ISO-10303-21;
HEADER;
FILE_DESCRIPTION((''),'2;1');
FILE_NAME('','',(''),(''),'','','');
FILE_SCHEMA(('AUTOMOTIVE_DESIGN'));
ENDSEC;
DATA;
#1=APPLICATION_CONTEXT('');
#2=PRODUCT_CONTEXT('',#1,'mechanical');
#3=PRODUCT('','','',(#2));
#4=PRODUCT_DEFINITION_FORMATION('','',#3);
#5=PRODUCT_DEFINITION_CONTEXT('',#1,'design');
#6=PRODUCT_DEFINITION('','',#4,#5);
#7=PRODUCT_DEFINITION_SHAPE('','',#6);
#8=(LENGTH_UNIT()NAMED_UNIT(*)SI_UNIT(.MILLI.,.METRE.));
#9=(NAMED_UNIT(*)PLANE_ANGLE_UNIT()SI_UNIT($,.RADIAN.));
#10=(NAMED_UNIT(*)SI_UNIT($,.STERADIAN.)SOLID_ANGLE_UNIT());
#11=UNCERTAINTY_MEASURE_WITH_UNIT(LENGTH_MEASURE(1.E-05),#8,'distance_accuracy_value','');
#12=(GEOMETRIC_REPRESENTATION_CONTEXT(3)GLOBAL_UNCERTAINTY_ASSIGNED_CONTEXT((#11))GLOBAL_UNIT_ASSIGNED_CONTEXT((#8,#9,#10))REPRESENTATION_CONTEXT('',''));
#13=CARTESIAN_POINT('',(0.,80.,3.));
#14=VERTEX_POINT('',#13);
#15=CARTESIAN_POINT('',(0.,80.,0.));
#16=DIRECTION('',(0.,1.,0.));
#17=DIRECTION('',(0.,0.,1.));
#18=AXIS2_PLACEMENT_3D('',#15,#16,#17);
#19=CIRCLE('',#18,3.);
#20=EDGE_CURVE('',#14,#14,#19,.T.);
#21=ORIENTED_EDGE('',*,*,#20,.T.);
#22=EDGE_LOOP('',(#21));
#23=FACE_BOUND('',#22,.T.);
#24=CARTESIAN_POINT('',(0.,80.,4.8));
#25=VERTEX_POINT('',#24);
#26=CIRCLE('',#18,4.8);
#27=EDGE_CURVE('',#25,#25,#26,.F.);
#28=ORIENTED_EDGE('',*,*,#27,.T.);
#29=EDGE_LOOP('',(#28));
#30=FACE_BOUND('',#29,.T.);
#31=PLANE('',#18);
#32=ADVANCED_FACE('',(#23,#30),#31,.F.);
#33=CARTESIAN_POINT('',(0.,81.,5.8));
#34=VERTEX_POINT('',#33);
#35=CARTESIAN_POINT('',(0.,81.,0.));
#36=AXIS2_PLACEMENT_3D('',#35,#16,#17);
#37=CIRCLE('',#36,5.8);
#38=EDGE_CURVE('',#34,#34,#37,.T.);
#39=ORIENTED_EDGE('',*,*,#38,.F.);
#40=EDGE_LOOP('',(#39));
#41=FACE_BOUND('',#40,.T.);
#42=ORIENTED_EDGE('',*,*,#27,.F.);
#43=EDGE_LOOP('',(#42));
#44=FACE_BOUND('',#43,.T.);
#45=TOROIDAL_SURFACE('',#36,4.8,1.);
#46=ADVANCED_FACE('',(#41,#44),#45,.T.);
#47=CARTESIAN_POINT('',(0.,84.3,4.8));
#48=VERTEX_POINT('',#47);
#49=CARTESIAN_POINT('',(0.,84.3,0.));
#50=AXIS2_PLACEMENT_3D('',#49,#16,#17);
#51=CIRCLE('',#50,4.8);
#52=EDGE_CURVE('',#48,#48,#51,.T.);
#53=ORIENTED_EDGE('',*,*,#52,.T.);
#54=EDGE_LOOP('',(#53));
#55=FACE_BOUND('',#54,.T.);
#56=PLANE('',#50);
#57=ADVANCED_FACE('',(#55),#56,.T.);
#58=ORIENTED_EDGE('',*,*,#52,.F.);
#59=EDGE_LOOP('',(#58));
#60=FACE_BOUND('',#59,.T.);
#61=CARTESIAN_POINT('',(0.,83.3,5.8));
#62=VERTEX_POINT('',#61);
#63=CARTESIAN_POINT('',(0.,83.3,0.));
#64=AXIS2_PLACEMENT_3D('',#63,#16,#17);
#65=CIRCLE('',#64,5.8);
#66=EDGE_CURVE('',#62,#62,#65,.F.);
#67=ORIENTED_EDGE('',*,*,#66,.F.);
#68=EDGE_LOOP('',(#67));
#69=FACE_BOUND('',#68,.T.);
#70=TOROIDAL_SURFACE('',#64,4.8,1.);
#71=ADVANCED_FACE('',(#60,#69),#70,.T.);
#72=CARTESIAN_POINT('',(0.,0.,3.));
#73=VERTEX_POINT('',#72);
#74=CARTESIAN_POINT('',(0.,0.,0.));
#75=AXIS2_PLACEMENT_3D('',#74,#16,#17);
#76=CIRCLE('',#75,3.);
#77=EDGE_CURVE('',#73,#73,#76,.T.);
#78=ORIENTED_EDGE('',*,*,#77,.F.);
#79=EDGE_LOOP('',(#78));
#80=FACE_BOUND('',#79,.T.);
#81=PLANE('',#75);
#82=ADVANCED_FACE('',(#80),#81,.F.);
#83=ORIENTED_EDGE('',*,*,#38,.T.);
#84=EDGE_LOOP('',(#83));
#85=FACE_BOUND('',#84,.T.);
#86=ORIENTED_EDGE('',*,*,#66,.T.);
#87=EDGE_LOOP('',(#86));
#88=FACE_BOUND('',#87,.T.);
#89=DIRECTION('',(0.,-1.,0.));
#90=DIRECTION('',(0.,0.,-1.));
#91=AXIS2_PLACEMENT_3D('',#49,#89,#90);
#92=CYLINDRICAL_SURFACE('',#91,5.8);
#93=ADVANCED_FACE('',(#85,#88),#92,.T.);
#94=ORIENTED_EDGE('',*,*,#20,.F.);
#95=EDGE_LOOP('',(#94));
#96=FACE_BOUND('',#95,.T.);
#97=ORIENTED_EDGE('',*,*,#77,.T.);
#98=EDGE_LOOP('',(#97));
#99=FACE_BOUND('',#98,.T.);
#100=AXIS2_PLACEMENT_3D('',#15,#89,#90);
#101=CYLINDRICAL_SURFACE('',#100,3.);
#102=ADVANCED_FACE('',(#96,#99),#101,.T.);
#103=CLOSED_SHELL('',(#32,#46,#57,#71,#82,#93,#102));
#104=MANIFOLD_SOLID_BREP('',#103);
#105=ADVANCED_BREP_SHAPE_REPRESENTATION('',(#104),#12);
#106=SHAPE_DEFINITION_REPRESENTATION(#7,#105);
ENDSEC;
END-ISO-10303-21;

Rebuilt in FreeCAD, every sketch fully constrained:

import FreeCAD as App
import Part
import Sketcher
from FreeCAD import Vector


def edges_at(feature, points):
    """Names of the edges that pass closest to the given points."""
    edges = feature.Shape.Edges
    near = lambda p: min(range(len(edges)), key=lambda i: edges[i].distToShape(Part.Vertex(*p))[0])
    return sorted({f"Edge{near(p) + 1}" for p in points})

doc = App.newDocument("Part")
body = doc.addObject("PartDesign::Body", "Body")

# Sketch on XZ plane
sketch1 = body.newObject("Sketcher::SketchObject", "Sketch")
sketch1.AttachmentSupport = (doc.getObject("XZ_Plane"), [""])
sketch1.MapMode = "FlatFace"
sketch1.addGeometry(Part.Circle(Vector(0, 0, 0), Vector(0, 0, 1), 3), False)
sketch1.addConstraint(Sketcher.Constraint("Coincident", 0, 3, -1, 1))
sketch1.addConstraint(Sketcher.Constraint("Diameter", 0, 6.0))
pad1 = body.newObject("PartDesign::Pad", "Pad")
pad1.Profile = sketch1
pad1.Length = 80
pad1.Reversed = True

# Sketch on XZ plane
sketch2 = body.newObject("Sketcher::SketchObject", "Sketch001")
sketch2.AttachmentSupport = (doc.getObject("XZ_Plane"), [""])
sketch2.MapMode = "FlatFace"
sketch2.AttachmentOffset = App.Placement(Vector(0, 0, -80), App.Rotation())
sketch2.addGeometry(Part.Circle(Vector(0, 0, 0), Vector(0, 0, 1), 6), False)
sketch2.addConstraint(Sketcher.Constraint("Coincident", 0, 3, -1, 1))
sketch2.addConstraint(Sketcher.Constraint("Diameter", 0, 11.6))
pad2 = body.newObject("PartDesign::Pad", "Pad001")
pad2.Profile = sketch2
pad2.Length = 4.3
pad2.Reversed = True
doc.recompute()

fillet = body.newObject("PartDesign::Fillet", "Fillet")
fillet.Base = (pad2, edges_at(pad2, [(0, 80, -5.8), (0, 84.3, -5.8)]))
fillet.Radius = 1

doc.recompute()
